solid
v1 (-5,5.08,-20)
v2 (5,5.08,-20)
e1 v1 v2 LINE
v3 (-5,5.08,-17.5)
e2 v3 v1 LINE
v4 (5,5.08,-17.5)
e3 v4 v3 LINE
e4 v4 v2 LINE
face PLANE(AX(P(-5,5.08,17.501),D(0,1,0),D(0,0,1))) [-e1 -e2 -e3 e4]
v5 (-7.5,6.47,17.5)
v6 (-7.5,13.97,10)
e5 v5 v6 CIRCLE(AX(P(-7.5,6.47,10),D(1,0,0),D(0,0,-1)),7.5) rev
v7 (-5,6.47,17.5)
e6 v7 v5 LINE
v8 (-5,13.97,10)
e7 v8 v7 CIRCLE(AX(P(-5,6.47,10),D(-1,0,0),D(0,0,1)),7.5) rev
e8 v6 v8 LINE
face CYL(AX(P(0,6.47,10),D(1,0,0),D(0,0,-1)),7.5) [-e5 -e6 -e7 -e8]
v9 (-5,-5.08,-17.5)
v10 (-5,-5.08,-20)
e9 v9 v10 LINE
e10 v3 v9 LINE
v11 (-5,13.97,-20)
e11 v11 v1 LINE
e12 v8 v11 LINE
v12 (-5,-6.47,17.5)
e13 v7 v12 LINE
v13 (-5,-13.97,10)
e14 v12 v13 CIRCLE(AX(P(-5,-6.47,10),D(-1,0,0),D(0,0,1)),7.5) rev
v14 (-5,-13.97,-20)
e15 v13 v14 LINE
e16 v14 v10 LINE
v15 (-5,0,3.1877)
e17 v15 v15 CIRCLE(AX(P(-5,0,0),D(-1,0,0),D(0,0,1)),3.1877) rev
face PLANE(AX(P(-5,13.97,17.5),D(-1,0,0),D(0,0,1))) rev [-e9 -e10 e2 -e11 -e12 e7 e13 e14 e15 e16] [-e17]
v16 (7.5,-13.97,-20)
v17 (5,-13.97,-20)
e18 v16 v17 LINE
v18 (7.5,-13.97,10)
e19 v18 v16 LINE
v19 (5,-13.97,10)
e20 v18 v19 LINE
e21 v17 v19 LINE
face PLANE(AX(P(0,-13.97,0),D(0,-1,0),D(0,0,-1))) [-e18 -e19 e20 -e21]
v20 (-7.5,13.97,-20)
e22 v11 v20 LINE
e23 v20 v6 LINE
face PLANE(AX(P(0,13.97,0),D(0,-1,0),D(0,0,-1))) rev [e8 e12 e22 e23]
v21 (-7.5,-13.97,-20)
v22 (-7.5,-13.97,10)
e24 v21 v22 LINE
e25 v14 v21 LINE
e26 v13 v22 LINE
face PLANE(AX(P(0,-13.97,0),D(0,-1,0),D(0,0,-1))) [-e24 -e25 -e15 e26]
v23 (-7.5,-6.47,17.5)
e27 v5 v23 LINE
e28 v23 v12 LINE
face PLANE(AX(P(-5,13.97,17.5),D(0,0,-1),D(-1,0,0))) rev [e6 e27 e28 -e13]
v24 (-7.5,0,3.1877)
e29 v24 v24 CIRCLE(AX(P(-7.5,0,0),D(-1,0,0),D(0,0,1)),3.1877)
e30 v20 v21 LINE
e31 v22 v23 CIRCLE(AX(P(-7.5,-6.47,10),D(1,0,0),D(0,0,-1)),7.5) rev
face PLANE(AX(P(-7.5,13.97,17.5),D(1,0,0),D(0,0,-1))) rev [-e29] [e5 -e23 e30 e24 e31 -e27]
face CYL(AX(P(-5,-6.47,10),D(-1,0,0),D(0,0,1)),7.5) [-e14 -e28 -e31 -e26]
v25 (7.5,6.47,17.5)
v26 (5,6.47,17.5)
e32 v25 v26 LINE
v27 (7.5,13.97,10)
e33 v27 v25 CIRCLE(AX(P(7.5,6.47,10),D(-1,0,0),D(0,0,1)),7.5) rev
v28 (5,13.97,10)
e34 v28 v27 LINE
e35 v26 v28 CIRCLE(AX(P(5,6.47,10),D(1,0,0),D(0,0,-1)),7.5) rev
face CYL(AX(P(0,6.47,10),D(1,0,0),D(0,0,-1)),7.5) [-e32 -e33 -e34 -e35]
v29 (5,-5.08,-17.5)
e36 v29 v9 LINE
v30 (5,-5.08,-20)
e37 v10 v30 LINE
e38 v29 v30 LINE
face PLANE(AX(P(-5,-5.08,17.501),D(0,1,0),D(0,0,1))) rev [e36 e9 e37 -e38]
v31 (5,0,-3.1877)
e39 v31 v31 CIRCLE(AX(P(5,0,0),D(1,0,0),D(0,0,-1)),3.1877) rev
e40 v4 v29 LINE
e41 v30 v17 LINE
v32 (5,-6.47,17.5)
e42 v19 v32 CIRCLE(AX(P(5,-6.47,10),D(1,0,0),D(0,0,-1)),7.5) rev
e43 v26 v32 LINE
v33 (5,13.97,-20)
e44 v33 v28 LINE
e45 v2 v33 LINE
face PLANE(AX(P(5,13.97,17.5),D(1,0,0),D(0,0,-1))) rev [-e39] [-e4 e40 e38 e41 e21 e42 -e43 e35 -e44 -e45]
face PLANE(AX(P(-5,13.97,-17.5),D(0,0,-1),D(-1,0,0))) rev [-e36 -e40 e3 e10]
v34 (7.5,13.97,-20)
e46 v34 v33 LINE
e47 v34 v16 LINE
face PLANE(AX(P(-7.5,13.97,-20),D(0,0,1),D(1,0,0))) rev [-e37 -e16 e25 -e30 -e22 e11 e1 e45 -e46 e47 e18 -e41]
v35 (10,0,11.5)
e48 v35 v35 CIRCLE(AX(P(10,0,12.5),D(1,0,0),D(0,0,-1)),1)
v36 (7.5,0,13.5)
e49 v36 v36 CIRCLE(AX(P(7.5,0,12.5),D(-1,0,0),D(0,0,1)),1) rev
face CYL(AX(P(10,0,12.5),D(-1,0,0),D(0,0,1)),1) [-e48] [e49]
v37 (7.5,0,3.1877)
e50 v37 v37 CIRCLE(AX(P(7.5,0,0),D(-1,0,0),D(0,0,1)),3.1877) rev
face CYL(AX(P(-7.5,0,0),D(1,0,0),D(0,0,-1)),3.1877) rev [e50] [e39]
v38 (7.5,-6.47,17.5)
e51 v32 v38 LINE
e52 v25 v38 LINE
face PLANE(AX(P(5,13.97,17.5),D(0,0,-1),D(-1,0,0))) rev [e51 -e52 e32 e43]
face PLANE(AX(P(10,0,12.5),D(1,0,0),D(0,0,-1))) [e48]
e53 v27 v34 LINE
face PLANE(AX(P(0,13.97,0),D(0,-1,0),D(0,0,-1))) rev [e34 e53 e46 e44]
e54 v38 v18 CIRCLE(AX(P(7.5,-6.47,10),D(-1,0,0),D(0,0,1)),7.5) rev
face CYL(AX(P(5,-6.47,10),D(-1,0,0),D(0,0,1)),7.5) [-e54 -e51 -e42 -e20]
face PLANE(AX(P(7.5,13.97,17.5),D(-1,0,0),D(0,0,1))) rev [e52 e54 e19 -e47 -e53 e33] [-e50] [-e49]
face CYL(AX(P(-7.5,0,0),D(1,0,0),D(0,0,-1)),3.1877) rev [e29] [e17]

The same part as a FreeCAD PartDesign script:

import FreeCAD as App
import Part
import Sketcher
Q = App.Units.Quantity


def edges_at(feature, points):
    """Names of the edges that pass closest to the given points."""
    edges = feature.Shape.Edges
    near = lambda p: min(range(len(edges)), key=lambda i: edges[i].distToShape(Part.Vertex(*p))[0])
    return sorted({f"Edge{near(p) + 1}" for p in points})


def add_polygon(sketch, points):
    """Adds a closed chain of lines whose ends are joined by coincident constraints."""
    first, n = sketch.GeometryCount, len(points)
    for a, b in zip(points, points[1:] + points[:1]):
        sketch.addGeometry(Part.LineSegment(App.Vector(*a, 0), App.Vector(*b, 0)), False)
    for i in range(n):
        sketch.addConstraint(Sketcher.Constraint("Coincident", first + i, 2, first + (i + 1) % n, 1))

doc = App.newDocument("Part")
body = doc.addObject("PartDesign::Body", "Body")

sketch1 = body.newObject("Sketcher::SketchObject", "Sketch")
sketch1.AttachmentSupport = (doc.getObject("XZ_Plane"), [""])
sketch1.MapMode = "FlatFace"
add_polygon(sketch1, [(-7.5, -20), (-7.5, 17.5), (-5, 17.5), (-5, -17.5), (5, -17.5), (5, 17.5), (7.5, 17.5), (7.5, -20)])
sketch1.addConstraint([
    Sketcher.Constraint("Vertical", 0),
    Sketcher.Constraint("Horizontal", 1),
    Sketcher.Constraint("Vertical", 2),
    Sketcher.Constraint("Horizontal", 3),
    Sketcher.Constraint("Vertical", 4),
    Sketcher.Constraint("Horizontal", 5),
    Sketcher.Constraint("Vertical", 6),
    Sketcher.Constraint("Horizontal", 7),
    Sketcher.Constraint("Symmetric", 1, 2, 3, 2, -1, 1),
    Sketcher.Constraint("Symmetric", 0, 2, 5, 2, -2),
    Sketcher.Constraint("DistanceX", 3, 1, 3, 2, Q("10 mm")),
    Sketcher.Constraint("DistanceX", 7, 2, 7, 1, Q("15 mm")),
    Sketcher.Constraint("DistanceY", 2, 2, 2, 1, Q("35 mm")),
    Sketcher.Constraint("DistanceY", 0, 1, 0, 2, Q("37.5 mm")),
])
pad1 = body.newObject("PartDesign::Pad", "Pad")
pad1.Profile = sketch1
pad1.Length = 27.94
pad1.Midplane = True

sketch2 = body.newObject("Sketcher::SketchObject", "Sketch001")
sketch2.AttachmentSupport = (doc.getObject("YZ_Plane"), [""])
sketch2.MapMode = "FlatFace"
sketch2.AttachmentOffset = App.Placement(App.Vector(0, 0, 7.5), App.Rotation())
sketch2.addGeometry(Part.Circle(App.Vector(0, 12.5, 0), App.Vector(0, 0, 1), 1), False)
sketch2.addConstraint([
    Sketcher.Constraint("PointOnObject", 0, 3, -2),
    Sketcher.Constraint("Diameter", 0, Q("2 mm")),
    Sketcher.Constraint("DistanceY", -1, 1, 0, 3, Q("12.5 mm")),
])
pad2 = body.newObject("PartDesign::Pad", "Pad001")
pad2.Profile = sketch2
pad2.Length = 2.5

sketch3 = body.newObject("Sketcher::SketchObject", "Sketch002")
sketch3.AttachmentSupport = (doc.getObject("XY_Plane"), [""])
sketch3.MapMode = "FlatFace"
sketch3.AttachmentOffset = App.Placement(App.Vector(0, 0, -20), App.Rotation())
add_polygon(sketch3, [(5, -5), (5, -14), (-5, -14), (-5, -5)])
sketch3.addConstraint([
    Sketcher.Constraint("Vertical", 0),
    Sketcher.Constraint("Horizontal", 1),
    Sketcher.Constraint("Vertical", 2),
    Sketcher.Constraint("Horizontal", 3),
    Sketcher.Constraint("DistanceX", 1, 2, 1, 1, Q("10 mm")),
    Sketcher.Constraint("DistanceX", -1, 1, 0, 2, Q("5 mm")),
    Sketcher.Constraint("DistanceY", 0, 2, 0, 1, Q("8.89 mm")),
    Sketcher.Constraint("DistanceY", 0, 2, -1, 1, Q("13.97 mm")),
])
pocket1 = body.newObject("PartDesign::Pocket", "Pocket")
pocket1.Profile = sketch3
pocket1.Length = 2.5
pocket1.Reversed = True
doc.recompute()

fillet = body.newObject("PartDesign::Fillet", "Fillet")
fillet.Base = (pocket1, edges_at(pocket1, [
    (6.25, -13.97, 17.5),
    (-6.25, 13.97, 17.5),
    (6.25, 13.97, 17.5),
    (-6.25, -13.97, 17.5),
]))
fillet.Radius = 7.5

sketch4 = body.newObject("Sketcher::SketchObject", "Sketch003")
sketch4.AttachmentSupport = (doc.getObject("YZ_Plane"), [""])
sketch4.MapMode = "FlatFace"
sketch4.AttachmentOffset = App.Placement(App.Vector(0, 0, 5), App.Rotation())
sketch4.addGeometry(Part.Circle(App.Vector(0, 0, 0), App.Vector(0, 0, 1), 3.2), False)
sketch4.addConstraint([
    Sketcher.Constraint("Coincident", 0, 3, -1, 1),
    Sketcher.Constraint("Diameter", 0, Q("6.3754 mm")),
])
pocket2 = body.newObject("PartDesign::Pocket", "Pocket001")
pocket2.Profile = sketch4
pocket2.Type = "ThroughAll"
pocket2.Midplane = True
doc.recompute()

mirrored = body.newObject("PartDesign::Mirrored", "Mirrored")
mirrored.Originals = [pocket1]
mirrored.MirrorPlane = (doc.getObject("XZ_Plane"), [""])
body.Tip = mirrored

doc.recompute()
